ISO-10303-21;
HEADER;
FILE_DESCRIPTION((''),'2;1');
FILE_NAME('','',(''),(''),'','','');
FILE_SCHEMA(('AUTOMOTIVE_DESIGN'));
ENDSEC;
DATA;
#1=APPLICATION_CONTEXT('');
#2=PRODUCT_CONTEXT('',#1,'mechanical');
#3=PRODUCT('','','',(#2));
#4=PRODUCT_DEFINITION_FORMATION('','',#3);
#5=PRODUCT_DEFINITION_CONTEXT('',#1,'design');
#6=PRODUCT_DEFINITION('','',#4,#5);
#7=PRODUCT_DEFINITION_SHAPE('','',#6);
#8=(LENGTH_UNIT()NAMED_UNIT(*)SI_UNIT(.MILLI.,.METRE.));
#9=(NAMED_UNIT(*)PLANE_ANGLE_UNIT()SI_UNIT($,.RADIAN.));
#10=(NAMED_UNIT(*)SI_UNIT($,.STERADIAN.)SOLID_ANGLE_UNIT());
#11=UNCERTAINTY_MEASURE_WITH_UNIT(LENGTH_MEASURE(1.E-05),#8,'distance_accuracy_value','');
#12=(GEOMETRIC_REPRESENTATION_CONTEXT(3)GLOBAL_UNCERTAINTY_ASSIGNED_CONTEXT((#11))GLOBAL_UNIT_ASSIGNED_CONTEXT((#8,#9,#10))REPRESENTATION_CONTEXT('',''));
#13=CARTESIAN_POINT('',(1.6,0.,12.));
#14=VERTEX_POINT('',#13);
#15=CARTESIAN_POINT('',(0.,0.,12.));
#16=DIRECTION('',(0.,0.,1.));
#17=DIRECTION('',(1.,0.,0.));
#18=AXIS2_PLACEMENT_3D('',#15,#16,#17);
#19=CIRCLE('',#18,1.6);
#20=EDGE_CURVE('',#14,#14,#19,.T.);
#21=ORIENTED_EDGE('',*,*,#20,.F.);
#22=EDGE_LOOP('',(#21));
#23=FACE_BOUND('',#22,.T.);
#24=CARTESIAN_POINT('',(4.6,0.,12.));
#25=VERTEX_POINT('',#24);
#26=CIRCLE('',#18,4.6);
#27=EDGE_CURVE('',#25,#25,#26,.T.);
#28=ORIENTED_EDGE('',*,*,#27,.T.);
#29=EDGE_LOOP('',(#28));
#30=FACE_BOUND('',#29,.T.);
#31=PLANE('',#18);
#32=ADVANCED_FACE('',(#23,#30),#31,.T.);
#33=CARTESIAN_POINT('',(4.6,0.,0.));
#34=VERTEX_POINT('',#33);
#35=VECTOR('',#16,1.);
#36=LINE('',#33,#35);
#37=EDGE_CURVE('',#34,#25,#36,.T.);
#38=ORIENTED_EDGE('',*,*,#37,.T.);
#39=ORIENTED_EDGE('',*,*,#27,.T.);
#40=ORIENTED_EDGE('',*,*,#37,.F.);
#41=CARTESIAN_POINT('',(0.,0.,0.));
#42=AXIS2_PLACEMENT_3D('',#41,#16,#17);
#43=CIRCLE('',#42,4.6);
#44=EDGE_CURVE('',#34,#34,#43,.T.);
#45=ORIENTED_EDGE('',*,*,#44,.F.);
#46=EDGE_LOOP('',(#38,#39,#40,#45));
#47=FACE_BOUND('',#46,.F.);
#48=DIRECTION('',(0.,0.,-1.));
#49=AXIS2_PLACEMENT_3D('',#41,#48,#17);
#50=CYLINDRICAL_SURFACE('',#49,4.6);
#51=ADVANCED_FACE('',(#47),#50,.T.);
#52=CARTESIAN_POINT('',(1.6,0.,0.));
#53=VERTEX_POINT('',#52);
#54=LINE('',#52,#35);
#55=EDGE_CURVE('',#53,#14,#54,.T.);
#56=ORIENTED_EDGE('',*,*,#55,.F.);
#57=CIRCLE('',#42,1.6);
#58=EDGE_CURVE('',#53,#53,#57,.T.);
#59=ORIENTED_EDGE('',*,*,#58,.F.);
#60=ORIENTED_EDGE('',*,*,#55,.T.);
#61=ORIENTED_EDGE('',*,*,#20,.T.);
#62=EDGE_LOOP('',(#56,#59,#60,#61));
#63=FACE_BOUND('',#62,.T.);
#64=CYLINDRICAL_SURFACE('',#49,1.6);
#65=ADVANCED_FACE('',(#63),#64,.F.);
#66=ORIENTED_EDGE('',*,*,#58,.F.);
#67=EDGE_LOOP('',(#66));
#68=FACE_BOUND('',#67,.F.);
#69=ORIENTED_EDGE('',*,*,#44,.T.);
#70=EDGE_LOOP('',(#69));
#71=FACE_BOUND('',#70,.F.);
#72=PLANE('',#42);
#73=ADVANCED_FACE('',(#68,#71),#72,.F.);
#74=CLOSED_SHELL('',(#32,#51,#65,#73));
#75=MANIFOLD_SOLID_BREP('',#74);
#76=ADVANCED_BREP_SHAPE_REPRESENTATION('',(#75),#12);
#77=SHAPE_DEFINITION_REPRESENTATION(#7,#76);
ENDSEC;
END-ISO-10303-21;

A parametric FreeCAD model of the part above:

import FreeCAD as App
import Part
import Sketcher
from FreeCAD import Vector

doc = App.newDocument("Part")
body = doc.addObject("PartDesign::Body", "Body")

# Sketch on XY plane
sketch1 = body.newObject("Sketcher::SketchObject", "Sketch")
sketch1.AttachmentSupport = (doc.getObject("XY_Plane"), [""])
sketch1.MapMode = "FlatFace"
sketch1.addGeometry([
    Part.Circle(Vector(0, 0, 0), Vector(0, 0, 1), 4.6),
    Part.Circle(Vector(0, 0, 0), Vector(0, 0, 1), 1.6),
], False)
sketch1.addConstraint([
    Sketcher.Constraint("Coincident", 0, 3, -1, 1),
    Sketcher.Constraint("Coincident", 1, 3, -1, 1),
    Sketcher.Constraint("Diameter", 0, 9.2),
    Sketcher.Constraint("Diameter", 1, 3.2),
])
pad1 = body.newObject("PartDesign::Pad", "Pad")
pad1.Profile = sketch1
pad1.Length = 12

doc.recompute()
